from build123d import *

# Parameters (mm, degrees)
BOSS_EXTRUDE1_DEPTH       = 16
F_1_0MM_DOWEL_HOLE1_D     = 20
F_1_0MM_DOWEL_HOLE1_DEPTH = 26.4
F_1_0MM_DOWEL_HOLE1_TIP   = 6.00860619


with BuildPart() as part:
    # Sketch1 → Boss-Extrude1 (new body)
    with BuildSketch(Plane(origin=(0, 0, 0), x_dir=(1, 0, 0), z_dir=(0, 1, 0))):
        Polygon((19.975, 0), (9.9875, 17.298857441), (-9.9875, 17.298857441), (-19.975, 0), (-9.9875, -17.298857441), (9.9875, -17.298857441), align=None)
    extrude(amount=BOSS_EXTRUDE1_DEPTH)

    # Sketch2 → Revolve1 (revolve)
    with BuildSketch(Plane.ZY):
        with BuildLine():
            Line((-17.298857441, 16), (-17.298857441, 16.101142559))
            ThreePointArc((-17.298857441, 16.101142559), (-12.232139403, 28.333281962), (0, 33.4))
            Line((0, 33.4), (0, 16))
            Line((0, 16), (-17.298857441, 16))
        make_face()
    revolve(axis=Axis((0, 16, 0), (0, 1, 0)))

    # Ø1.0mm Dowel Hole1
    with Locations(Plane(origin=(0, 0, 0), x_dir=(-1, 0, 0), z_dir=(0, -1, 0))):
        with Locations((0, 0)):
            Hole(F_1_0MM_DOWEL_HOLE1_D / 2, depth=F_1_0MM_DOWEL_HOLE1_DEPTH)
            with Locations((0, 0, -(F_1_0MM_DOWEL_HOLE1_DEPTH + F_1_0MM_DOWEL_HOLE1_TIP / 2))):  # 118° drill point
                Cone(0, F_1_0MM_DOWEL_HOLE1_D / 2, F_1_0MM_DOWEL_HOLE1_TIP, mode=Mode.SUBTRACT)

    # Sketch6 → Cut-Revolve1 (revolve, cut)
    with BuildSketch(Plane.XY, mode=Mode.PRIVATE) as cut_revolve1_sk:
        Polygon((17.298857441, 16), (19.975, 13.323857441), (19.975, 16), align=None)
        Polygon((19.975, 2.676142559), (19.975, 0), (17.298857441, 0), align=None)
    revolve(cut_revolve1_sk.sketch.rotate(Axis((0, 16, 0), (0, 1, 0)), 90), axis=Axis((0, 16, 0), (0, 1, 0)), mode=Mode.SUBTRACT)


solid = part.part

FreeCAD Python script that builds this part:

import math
import FreeCAD as App
import Part
import Sketcher

V = App.Vector
Q = App.Units.Quantity

doc = App.newDocument("Part")
params = doc.addObject("Spreadsheet::Sheet", "Params")
for row, (alias, value) in enumerate([
    ("pad1_length", "16 mm"),
    ("sketch2_width", "17.4 mm"),
    ("revolution_angle", "360 deg"),
    ("sketch3_diameter", "20 mm"),
    ("hole_diameter", "20 mm"),
    ("hole_depth", "26.4 mm"),
    ("groove_angle", "360 deg"),
], start=1):
    params.set(f"A{row}", alias)
    params.set(f"B{row}", "=" + value)
    params.setAlias(f"B{row}", alias)

body = doc.addObject("PartDesign::Body", "Body")

# Sketch on XZ plane
sketch1 = body.newObject("Sketcher::SketchObject", "Sketch")
sketch1.AttachmentSupport = (doc.getObject("XZ_Plane"), [""])
sketch1.MapMode = "FlatFace"
sketch1.addGeometry([
    Part.LineSegment(V(20, 0, 0), V(10, -17, 0)),  # 0
    Part.LineSegment(V(10, -17, 0), V(-10, -17, 0)),  # 1
    Part.LineSegment(V(-10, -17, 0), V(-20, 0, 0)),  # 2
    Part.LineSegment(V(-20, 0, 0), V(-10, 17, 0)),  # 3
    Part.LineSegment(V(-10, 17, 0), V(10, 17, 0)),  # 4
    Part.LineSegment(V(10, 17, 0), V(20, 0, 0)),  # 5
], False)
sketch1.addConstraint([
    Sketcher.Constraint("Coincident", 0, 2, 1, 1),
    Sketcher.Constraint("Coincident", 1, 2, 2, 1),
    Sketcher.Constraint("Coincident", 2, 2, 3, 1),
    Sketcher.Constraint("Coincident", 3, 2, 4, 1),
    Sketcher.Constraint("Coincident", 4, 2, 5, 1),
    Sketcher.Constraint("Coincident", 5, 2, 0, 1),
    Sketcher.Constraint("Horizontal", 1),
    Sketcher.Constraint("Horizontal", 4),
    Sketcher.Constraint("Symmetric", 0, 2, 3, 2, -1, 1),
    Sketcher.Constraint("Symmetric", 2, 2, 5, 2, -1, 1),
    Sketcher.Constraint("PointOnObject", 2, 2, -1),
    Sketcher.Constraint("Parallel", 2, 5),
    Sketcher.Constraint("Vertical", 1, 2, 3, 2),
    Sketcher.Constraint("Angle", 0, Q("-120 deg")),
    Sketcher.Constraint("DistanceX", 1, 2, 1, 1, 19.975),
    Sketcher.Constraint("DistanceX", 2, 2, 5, 2, 39.95),
])
pad1 = body.newObject("PartDesign::Pad", "Pad")
pad1.Profile = sketch1
pad1.setExpression("Length", "Params.pad1_length")
pad1.Reversed = True

# Sketch on YZ plane
sketch2 = body.newObject("Sketcher::SketchObject", "Sketch001")
sketch2.AttachmentSupport = (doc.getObject("YZ_Plane"), [""])
sketch2.MapMode = "FlatFace"
sketch2.addGeometry([
    Part.LineSegment(V(16.1, -17.3, 0), V(16, -17.3, 0)),
    Part.LineSegment(V(16, -17.3, 0), V(16, 0, 0)),
    Part.LineSegment(V(16, 0, 0), V(33.4, 0, 0)),
    Part.ArcOfCircle(Part.Circle(V(16.1, 0, 0), V(0, 0, 1), 17.3), math.radians(-90), math.radians(0)),
], False)
sketch2.addConstraint([
    Sketcher.Constraint("Coincident", 0, 2, 1, 1),
    Sketcher.Constraint("Coincident", 1, 2, 2, 1),
    Sketcher.Constraint("Coincident", 2, 2, 3, 2),
    Sketcher.Constraint("Tangent", 3, 1, 0, 1),
    Sketcher.Constraint("Horizontal", 0),
    Sketcher.Constraint("Vertical", 1),
    Sketcher.Constraint("Horizontal", 2),
    Sketcher.Constraint("PointOnObject", 3, 3, -1),
    Sketcher.Constraint("PointOnObject", 1, 2, -1),
    Sketcher.Constraint("DistanceX", 2, 1, 2, 2, 17.4),
    Sketcher.Constraint("DistanceX", -1, 1, 0, 2, 16.0),
    Sketcher.Constraint("Radius", 3, 17.298857),
])
sketch2.setExpression("Constraints[9]", "Params.sketch2_width")
revolution = body.newObject("PartDesign::Revolution", "Revolution")
revolution.Profile = sketch2
revolution.ReferenceAxis = (sketch2, ["H_Axis"])
revolution.setExpression("Angle", "Params.revolution_angle")

# Sketch on XZ plane
sketch3 = body.newObject("Sketcher::SketchObject", "Sketch002")
sketch3.AttachmentSupport = (doc.getObject("XZ_Plane"), [""])
sketch3.MapMode = "FlatFace"
sketch3.addGeometry(Part.Circle(V(0, 0, 0), V(0, 0, 1), 10), False)
sketch3.addConstraint([
    Sketcher.Constraint("Coincident", 0, 3, -1, 1),
    Sketcher.Constraint("Diameter", 0, 20.0),
])
sketch3.setExpression("Constraints[1]", "Params.sketch3_diameter")
doc.recompute()
hole = body.newObject("PartDesign::Hole", "Hole")
hole.Profile = sketch3
hole.ThreadType = "None"
hole.setExpression("Diameter", "Params.hole_diameter")
hole.DepthType = "Dimension"
hole.setExpression("Depth", "Params.hole_depth")
hole.DrillPoint = "Angled"
hole.DrillPointAngle = 118

# Sketch on XY plane
sketch4 = body.newObject("Sketcher::SketchObject", "Sketch003")
sketch4.AttachmentSupport = (doc.getObject("XY_Plane"), [""])
sketch4.MapMode = "FlatFace"
sketch4.addGeometry([
    Part.LineSegment(V(17.3, 16, 0), V(20, 13.3, 0)),  # 0
    Part.LineSegment(V(20, 13.3, 0), V(20, 16, 0)),  # 1
    Part.LineSegment(V(20, 16, 0), V(17.3, 16, 0)),  # 2
    Part.LineSegment(V(20, 0, 0), V(20, 2.7, 0)),  # 3
    Part.LineSegment(V(20, 2.7, 0), V(17.3, 0, 0)),  # 4
    Part.LineSegment(V(17.3, 0, 0), V(20, 0, 0)),  # 5
], False)
sketch4.addConstraint([
    Sketcher.Constraint("Coincident", 0, 2, 1, 1),
    Sketcher.Constraint("Coincident", 1, 2, 2, 1),
    Sketcher.Constraint("Coincident", 2, 2, 0, 1),
    Sketcher.Constraint("Coincident", 3, 2, 4, 1),
    Sketcher.Constraint("Coincident", 4, 2, 5, 1),
    Sketcher.Constraint("Coincident", 5, 2, 3, 1),
    Sketcher.Constraint("Vertical", 1),
    Sketcher.Constraint("Horizontal", 2),
    Sketcher.Constraint("Vertical", 3),
    Sketcher.Constraint("Horizontal", 5),
    Sketcher.Constraint("PointOnObject", 4, 2, -1),
    Sketcher.Constraint("Perpendicular", 0, 4),
    Sketcher.Constraint("Vertical", 1, 2, 3, 2),
    Sketcher.Constraint("Vertical", 2, 2, 4, 2),
    Sketcher.Constraint("Equal", 5, 1),
    Sketcher.Constraint("DistanceY", -1, 1, 1, 2, 16.0),
    Sketcher.Constraint("DistanceX", -1, 1, 0, 2, 19.975),
    Sketcher.Constraint("DistanceX", 2, 2, 2, 1, 2.676143),
])
groove = body.newObject("PartDesign::Groove", "Groove")
groove.Profile = sketch4
groove.ReferenceAxis = (sketch4, ["V_Axis"])
groove.setExpression("Angle", "Params.groove_angle")

doc.recompute()
